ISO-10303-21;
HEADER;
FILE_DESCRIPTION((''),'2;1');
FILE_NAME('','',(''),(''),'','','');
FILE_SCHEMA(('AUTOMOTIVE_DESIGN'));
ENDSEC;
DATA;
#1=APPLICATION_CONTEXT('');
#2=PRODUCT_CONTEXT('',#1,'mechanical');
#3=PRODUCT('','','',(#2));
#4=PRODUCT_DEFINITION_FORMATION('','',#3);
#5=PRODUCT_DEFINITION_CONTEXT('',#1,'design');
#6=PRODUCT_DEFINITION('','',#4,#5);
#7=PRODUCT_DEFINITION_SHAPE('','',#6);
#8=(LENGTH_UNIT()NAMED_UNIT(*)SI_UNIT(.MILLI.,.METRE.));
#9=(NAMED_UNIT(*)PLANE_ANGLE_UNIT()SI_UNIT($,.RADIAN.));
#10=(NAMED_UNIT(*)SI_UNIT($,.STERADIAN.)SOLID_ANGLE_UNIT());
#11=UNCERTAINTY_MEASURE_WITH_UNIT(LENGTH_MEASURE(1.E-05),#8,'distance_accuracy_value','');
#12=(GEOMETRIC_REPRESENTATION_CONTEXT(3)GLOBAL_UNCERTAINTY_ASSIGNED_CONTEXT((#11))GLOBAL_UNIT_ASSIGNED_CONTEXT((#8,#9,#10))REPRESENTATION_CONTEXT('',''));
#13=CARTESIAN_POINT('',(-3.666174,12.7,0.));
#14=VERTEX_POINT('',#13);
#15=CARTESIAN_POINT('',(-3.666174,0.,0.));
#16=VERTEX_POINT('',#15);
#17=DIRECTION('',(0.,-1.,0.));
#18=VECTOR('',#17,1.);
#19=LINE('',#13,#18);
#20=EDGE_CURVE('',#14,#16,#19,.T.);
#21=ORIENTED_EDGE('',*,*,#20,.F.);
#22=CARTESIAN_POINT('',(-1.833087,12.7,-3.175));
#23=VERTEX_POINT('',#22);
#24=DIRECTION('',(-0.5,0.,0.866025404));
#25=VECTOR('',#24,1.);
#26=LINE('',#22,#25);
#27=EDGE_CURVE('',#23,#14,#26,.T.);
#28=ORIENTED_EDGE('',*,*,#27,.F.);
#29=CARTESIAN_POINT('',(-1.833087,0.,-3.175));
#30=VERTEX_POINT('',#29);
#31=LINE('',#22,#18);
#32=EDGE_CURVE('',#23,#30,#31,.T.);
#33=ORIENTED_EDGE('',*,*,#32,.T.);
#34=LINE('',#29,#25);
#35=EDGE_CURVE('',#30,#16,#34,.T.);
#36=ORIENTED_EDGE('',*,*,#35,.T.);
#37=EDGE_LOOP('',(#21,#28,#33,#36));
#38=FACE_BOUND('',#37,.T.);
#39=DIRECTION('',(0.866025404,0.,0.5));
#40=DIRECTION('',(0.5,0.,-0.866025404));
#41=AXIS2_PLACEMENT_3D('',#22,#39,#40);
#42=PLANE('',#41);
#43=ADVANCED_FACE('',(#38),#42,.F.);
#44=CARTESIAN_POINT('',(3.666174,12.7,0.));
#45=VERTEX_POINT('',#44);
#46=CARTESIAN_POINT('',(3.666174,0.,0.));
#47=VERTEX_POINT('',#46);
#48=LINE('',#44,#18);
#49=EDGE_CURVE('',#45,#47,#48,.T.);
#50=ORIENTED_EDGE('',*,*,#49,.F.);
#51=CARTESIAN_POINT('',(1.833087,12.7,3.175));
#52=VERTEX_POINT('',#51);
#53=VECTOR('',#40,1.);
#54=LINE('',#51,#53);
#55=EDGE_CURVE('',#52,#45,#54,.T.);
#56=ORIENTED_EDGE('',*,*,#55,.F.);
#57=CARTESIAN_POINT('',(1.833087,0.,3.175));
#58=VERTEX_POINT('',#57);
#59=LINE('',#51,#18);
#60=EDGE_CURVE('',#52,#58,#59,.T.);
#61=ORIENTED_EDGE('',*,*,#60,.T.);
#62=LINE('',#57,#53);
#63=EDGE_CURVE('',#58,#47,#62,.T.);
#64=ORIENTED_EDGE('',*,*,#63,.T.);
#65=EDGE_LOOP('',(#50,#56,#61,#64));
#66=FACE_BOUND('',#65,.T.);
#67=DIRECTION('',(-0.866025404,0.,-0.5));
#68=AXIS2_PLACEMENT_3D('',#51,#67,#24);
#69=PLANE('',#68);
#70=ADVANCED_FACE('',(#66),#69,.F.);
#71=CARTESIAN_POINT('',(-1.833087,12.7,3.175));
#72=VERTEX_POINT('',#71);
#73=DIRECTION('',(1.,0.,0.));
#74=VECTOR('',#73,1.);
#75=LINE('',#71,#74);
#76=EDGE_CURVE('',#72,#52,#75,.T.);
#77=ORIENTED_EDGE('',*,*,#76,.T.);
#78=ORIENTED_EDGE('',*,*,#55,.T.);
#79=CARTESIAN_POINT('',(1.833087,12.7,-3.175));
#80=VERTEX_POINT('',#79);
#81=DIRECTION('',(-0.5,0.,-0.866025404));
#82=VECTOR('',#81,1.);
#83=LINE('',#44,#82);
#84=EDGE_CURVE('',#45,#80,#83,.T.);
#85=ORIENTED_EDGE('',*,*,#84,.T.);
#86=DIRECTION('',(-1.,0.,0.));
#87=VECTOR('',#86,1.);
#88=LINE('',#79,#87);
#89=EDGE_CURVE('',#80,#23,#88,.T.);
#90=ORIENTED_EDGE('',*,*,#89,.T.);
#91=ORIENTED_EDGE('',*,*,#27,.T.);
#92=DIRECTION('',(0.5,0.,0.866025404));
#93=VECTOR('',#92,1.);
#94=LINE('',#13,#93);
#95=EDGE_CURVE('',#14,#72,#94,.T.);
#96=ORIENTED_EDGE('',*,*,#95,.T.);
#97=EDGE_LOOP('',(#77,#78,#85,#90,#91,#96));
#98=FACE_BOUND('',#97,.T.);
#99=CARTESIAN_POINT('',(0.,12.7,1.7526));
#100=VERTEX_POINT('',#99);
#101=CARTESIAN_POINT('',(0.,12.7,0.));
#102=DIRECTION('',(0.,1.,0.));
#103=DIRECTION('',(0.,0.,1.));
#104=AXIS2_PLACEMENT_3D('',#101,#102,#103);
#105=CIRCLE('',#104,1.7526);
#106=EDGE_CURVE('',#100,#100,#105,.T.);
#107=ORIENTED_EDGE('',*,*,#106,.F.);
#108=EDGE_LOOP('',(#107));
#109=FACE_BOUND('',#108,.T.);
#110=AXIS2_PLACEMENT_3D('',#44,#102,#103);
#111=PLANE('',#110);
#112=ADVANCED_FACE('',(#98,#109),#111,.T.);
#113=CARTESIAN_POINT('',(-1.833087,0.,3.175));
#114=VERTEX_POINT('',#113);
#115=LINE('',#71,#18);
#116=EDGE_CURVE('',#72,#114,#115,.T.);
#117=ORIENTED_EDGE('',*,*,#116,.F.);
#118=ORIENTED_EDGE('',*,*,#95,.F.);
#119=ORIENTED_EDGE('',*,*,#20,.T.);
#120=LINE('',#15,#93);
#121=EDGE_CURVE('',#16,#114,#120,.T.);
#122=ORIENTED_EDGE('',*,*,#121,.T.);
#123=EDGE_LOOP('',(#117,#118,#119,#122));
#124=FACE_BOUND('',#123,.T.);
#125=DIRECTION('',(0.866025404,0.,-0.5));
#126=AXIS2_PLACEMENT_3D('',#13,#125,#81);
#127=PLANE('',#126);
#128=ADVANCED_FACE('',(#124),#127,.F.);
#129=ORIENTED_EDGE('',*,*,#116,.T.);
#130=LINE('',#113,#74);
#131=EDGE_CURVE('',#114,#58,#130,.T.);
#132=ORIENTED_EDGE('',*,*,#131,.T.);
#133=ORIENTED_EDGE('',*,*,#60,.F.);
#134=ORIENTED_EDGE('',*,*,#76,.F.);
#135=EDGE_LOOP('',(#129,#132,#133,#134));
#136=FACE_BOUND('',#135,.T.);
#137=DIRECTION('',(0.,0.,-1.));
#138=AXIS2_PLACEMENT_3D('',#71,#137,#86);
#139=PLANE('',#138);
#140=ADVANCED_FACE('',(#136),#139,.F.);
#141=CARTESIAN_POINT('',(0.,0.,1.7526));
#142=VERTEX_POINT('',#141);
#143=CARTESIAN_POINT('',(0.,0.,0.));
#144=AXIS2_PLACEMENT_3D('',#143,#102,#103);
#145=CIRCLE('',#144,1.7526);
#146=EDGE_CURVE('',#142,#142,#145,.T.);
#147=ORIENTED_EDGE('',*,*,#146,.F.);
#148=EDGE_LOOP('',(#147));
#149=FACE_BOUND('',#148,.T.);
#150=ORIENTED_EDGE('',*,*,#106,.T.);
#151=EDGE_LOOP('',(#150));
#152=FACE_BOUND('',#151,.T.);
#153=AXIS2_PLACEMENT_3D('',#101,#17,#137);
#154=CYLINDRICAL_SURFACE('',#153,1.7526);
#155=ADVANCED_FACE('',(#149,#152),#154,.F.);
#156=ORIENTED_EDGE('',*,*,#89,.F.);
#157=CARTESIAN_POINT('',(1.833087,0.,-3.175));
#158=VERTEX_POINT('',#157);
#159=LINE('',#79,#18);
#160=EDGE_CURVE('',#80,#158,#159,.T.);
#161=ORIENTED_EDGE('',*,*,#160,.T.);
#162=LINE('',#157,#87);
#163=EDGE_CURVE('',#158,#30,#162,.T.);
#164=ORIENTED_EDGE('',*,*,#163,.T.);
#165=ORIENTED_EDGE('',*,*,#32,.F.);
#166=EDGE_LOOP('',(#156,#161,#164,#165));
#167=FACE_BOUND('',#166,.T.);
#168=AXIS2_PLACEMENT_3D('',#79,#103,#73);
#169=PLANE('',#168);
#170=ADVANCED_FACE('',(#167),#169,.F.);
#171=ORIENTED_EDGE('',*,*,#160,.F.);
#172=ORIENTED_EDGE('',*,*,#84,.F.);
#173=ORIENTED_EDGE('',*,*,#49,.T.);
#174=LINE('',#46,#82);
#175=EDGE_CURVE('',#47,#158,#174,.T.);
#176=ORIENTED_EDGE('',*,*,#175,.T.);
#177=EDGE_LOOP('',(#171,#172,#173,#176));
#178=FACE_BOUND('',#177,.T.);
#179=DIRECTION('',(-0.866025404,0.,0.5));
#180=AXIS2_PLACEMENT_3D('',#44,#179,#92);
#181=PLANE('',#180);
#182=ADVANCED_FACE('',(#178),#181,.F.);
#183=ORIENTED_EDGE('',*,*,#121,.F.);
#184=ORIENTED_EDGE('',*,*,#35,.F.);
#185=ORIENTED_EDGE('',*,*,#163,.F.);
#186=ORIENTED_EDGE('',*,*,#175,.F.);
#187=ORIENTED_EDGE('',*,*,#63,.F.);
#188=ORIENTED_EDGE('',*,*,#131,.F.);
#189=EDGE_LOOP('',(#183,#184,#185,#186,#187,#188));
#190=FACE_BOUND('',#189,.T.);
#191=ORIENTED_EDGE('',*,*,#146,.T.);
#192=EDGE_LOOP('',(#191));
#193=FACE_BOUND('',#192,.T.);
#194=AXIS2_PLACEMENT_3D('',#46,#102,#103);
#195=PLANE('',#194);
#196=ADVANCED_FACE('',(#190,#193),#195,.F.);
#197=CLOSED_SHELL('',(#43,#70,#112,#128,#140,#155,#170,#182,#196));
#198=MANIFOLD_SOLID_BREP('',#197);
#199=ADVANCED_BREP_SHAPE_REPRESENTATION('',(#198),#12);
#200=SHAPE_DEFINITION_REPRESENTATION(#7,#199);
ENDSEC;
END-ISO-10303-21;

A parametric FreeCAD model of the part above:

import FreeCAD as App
import Part
import Sketcher
from FreeCAD import Vector
Q = App.Units.Quantity


def add_polygon(sketch, points):
    """Adds a closed chain of lines whose ends are joined by coincident constraints."""
    first, n = sketch.GeometryCount, len(points)
    for a, b in zip(points, points[1:] + points[:1]):
        sketch.addGeometry(Part.LineSegment(App.Vector(*a, 0), App.Vector(*b, 0)), False)
    for i in range(n):
        sketch.addConstraint(Sketcher.Constraint("Coincident", first + i, 2, first + (i + 1) % n, 1))

doc = App.newDocument("Part")
body = doc.addObject("PartDesign::Body", "Body")

sketch1 = doc.addObject("Sketcher::SketchObject", "Sketch")
body.addObject(sketch1)
sketch1.AttachmentSupport = (doc.XZ_Plane, [""])
sketch1.MapMode = "FlatFace"
add_polygon(sketch1, [(3.666174, 0), (1.833087, -3.175), (-1.833087, -3.175), (-3.666174, 0), (-1.833087, 3.175), (1.833087, 3.175)])
sketch1.addGeometry(Part.Circle(Vector(0, 0, 0), Vector(0, 0, 1), 1.7526), False)
sketch1.addConstraint([
    Sketcher.Constraint("Horizontal", 1),
    Sketcher.Constraint("Horizontal", 4),
    Sketcher.Constraint("Coincident", 6, 3, -1, 1),
    Sketcher.Constraint("Symmetric", 0, 2, 3, 2, -1, 1),
    Sketcher.Constraint("Symmetric", 2, 2, 5, 2, -1, 1),
    Sketcher.Constraint("PointOnObject", 2, 2, -1),
    Sketcher.Constraint("Parallel", 2, 5),
    Sketcher.Constraint("Vertical", 1, 2, 3, 2),
    Sketcher.Constraint("Diameter", 6, Q("0.138 in")),
    Sketcher.Constraint("Angle", 0, Q("-120 deg")),
    Sketcher.Constraint("DistanceY", 1, 2, 3, 2, Q("0.25 in")),
    Sketcher.Constraint("DistanceX", 1, 2, 1, 1, 3.666174),
])
pad1 = doc.addObject("PartDesign::Pad", "Pad")
body.addObject(pad1)
pad1.Profile = sketch1
pad1.Length = Q("0.5 in")
pad1.Reversed = True

doc.recompute()
